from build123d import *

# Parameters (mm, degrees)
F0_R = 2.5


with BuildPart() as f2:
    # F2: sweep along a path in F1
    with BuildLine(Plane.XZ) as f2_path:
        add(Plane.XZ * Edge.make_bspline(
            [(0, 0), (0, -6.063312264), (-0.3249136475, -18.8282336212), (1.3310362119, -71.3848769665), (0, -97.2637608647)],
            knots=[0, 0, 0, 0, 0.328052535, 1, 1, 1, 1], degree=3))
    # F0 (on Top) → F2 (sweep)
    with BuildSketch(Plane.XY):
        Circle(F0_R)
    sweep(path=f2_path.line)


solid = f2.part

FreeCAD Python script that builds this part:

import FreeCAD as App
import Part
import Sketcher

doc = App.newDocument("Part")
body = doc.addObject("PartDesign::Body", "Body")

# Sketch on XY plane
sketch1 = doc.addObject("Sketcher::SketchObject", "Sketch")
body.addObject(sketch1)
sketch1.AttachmentSupport = (doc.XY_Plane, [""])
sketch1.MapMode = "FlatFace"
sketch1.addGeometry(Part.Circle(App.Vector(0, 0, 0), App.Vector(0, 0, 1), 2.5), False)
sketch1.addConstraint([
    Sketcher.Constraint("Coincident", 0, 3, -1, 1),
    Sketcher.Constraint("Diameter", 0, 5.0),
])

# Sketch on XZ plane
sketch2 = doc.addObject("Sketcher::SketchObject", "Sketch001")
body.addObject(sketch2)
sketch2.AttachmentSupport = (doc.XZ_Plane, [""])
sketch2.MapMode = "FlatFace"
sketch2.addGeometry(Part.BSplineCurve([App.Vector(0, 0, 0), App.Vector(0, -6.063312, 0), App.Vector(-0.324914, -18.828234, 0), App.Vector(1.331036, -71.384877, 0), App.Vector(0, -97.263761, 0)], [4, 1, 4], [0, 0.328052535, 1], False, 3, [1, 1, 1, 1, 1], False), False)
sketch2.addConstraint(Sketcher.Constraint("Block", 0))
doc.recompute()

additivepipe = doc.addObject("PartDesign::AdditivePipe", "AdditivePipe")
body.addObject(additivepipe)
additivepipe.Profile = sketch1
additivepipe.Spine = (sketch2, ["Edge1"])

doc.recompute()
